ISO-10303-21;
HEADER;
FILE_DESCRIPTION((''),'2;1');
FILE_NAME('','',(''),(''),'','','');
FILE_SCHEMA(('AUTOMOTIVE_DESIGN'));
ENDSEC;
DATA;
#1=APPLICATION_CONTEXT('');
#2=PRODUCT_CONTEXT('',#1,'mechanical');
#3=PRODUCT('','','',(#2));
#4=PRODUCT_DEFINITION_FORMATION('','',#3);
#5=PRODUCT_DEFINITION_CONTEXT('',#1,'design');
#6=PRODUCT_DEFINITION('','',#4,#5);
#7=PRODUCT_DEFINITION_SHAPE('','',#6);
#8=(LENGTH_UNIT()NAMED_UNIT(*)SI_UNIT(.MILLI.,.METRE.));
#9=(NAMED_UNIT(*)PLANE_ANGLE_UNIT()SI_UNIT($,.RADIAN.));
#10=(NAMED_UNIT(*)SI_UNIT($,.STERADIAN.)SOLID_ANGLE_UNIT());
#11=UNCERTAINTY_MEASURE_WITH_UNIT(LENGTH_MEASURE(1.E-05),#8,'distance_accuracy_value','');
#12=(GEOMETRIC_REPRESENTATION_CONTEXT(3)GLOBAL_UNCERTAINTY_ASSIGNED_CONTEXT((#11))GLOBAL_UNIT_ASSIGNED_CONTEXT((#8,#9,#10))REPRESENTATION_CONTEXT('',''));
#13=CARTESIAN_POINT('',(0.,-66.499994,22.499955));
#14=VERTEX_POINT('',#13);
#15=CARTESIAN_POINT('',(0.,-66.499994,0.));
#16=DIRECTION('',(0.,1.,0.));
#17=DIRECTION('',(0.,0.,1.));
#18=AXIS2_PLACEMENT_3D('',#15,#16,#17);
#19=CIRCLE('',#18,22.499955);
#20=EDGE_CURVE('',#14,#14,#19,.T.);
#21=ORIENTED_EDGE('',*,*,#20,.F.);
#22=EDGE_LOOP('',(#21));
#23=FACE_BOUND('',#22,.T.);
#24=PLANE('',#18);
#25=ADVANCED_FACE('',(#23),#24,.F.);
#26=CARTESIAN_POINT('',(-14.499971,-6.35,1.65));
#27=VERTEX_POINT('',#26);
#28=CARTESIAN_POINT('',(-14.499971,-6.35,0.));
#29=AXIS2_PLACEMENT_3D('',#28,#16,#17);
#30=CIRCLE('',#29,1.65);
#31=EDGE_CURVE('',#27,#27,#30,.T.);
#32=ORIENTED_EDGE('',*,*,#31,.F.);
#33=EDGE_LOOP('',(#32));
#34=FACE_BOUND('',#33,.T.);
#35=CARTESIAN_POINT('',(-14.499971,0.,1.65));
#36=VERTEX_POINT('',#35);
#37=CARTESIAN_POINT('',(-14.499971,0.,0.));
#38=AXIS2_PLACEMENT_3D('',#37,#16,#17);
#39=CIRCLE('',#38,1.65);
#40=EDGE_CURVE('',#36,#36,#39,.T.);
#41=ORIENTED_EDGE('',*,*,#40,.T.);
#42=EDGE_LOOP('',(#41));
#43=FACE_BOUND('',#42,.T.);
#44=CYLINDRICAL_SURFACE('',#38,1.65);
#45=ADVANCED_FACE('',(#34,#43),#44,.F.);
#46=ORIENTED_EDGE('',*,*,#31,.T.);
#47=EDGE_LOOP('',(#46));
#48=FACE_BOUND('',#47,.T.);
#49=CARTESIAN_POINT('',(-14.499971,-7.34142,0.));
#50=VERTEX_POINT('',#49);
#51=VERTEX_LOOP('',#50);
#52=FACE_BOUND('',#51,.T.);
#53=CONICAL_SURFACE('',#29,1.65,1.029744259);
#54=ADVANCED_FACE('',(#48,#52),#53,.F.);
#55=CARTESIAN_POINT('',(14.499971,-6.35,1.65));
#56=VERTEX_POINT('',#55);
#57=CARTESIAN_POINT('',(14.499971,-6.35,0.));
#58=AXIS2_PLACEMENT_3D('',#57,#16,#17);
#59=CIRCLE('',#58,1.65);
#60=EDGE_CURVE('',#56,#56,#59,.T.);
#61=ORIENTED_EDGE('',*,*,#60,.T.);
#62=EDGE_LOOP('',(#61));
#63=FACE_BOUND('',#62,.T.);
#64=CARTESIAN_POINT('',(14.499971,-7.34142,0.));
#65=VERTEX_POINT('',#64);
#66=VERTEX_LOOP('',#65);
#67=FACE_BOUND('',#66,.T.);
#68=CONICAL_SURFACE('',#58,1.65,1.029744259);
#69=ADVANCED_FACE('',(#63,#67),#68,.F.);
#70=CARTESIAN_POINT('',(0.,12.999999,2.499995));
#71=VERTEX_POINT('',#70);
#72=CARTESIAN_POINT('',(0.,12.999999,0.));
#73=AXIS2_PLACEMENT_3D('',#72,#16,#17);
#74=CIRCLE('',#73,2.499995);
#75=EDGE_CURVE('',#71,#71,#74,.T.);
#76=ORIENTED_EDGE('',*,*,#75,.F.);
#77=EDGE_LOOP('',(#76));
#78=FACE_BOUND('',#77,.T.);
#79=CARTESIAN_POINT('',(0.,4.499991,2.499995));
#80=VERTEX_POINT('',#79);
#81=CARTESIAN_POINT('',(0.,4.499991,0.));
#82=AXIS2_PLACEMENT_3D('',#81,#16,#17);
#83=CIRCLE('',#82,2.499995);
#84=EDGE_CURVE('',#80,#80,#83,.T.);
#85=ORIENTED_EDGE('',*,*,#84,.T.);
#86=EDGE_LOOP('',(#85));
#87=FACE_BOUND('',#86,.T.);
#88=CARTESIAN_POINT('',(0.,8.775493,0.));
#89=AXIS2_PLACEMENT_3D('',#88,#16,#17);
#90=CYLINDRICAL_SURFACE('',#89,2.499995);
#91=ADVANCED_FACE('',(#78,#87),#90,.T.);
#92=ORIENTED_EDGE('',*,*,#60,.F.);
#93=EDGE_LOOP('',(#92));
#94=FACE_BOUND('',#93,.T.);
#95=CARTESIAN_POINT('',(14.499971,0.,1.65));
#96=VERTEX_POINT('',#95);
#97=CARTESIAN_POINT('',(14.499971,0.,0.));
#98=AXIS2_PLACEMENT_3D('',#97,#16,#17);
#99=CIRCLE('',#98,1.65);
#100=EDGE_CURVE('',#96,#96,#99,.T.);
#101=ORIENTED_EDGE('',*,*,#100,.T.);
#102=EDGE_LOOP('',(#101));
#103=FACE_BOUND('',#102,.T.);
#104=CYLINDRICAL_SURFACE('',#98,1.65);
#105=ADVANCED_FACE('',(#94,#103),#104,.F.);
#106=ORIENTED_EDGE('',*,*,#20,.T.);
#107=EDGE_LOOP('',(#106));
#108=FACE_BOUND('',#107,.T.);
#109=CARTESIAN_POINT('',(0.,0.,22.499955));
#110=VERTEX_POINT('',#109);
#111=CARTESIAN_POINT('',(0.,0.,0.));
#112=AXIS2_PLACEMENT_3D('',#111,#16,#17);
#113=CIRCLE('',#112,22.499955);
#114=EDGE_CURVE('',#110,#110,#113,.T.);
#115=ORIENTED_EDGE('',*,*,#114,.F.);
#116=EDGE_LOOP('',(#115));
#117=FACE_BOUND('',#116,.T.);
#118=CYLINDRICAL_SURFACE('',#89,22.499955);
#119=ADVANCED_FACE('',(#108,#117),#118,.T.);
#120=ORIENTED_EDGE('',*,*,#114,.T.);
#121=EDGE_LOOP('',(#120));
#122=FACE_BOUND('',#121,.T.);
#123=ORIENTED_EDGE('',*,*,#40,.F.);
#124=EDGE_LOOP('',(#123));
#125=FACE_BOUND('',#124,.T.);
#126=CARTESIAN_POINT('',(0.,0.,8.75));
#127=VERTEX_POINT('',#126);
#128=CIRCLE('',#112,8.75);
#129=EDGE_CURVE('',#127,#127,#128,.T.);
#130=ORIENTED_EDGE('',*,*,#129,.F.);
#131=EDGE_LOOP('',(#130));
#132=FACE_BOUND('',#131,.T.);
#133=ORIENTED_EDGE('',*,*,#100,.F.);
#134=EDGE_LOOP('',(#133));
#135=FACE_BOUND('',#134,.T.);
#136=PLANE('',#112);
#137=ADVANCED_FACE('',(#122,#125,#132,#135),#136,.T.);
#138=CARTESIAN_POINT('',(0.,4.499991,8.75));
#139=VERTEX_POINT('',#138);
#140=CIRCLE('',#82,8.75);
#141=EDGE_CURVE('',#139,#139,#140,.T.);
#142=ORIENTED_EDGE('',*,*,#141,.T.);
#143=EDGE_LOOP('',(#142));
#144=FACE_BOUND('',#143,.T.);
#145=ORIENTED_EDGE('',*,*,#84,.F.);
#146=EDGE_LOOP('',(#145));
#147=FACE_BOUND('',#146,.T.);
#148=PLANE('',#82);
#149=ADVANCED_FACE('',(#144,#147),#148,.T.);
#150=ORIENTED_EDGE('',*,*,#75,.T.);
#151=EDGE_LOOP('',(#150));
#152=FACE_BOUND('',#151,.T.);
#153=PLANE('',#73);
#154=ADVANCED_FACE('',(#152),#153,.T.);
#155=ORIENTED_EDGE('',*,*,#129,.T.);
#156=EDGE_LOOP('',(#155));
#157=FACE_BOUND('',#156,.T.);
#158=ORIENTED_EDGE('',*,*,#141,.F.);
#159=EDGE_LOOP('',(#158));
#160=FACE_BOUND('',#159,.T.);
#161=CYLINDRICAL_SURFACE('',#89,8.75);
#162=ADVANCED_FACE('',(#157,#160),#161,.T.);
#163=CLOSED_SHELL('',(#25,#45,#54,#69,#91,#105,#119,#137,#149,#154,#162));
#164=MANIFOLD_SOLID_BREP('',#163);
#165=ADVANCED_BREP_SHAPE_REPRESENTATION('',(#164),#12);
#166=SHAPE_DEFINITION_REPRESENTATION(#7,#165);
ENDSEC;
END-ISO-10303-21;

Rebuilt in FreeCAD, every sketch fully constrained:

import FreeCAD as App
import Part
import Sketcher

V = App.Vector


def add_polygon(sketch, points):
    """Adds a closed chain of lines whose ends are joined by coincident constraints."""
    first, n = sketch.GeometryCount, len(points)
    for a, b in zip(points, points[1:] + points[:1]):
        sketch.addGeometry(Part.LineSegment(App.Vector(*a, 0), App.Vector(*b, 0)), False)
    for i in range(n):
        sketch.addConstraint(Sketcher.Constraint("Coincident", first + i, 2, first + (i + 1) % n, 1))

doc = App.newDocument("Part")
body = doc.addObject("PartDesign::Body", "Body")

# Sketch on XY plane
sketch1 = doc.addObject("Sketcher::SketchObject", "Sketch")
body.addObject(sketch1)
sketch1.AttachmentSupport = (doc.XY_Plane, [""])
sketch1.MapMode = "FlatFace"
add_polygon(sketch1, [(0, -66.499994), (22.499955, -66.499994), (22.499955, 0), (8.75, 0), (8.75, 4.499991), (2.499995, 4.499991), (2.499995, 12.999999), (0, 12.999999)])  # lines 0-7
sketch1.addConstraint(Sketcher.Constraint("Horizontal", 0))
sketch1.addConstraint(Sketcher.Constraint("Vertical", 1))
sketch1.addConstraint(Sketcher.Constraint("Horizontal", 2))
sketch1.addConstraint(Sketcher.Constraint("Vertical", 3))
sketch1.addConstraint(Sketcher.Constraint("Horizontal", 4))
sketch1.addConstraint(Sketcher.Constraint("Vertical", 5))
sketch1.addConstraint(Sketcher.Constraint("Horizontal", 6))
sketch1.addConstraint(Sketcher.Constraint("Vertical", 7))
sketch1.addConstraint(Sketcher.Constraint("PointOnObject", 1, 2, -1))
sketch1.addConstraint(Sketcher.Constraint("PointOnObject", 6, 2, -2))
sketch1.addConstraint(Sketcher.Constraint("DistanceY", -1, 1, 5, 2, 12.999999))
sketch1.addConstraint(Sketcher.Constraint("DistanceX", -1, 1, 2, 2, 8.75))
sketch1.addConstraint(Sketcher.Constraint("DistanceY", 3, 1, 3, 2, 4.499991))
sketch1.addConstraint(Sketcher.Constraint("DistanceX", 0, 1, 0, 2, 22.499955))
sketch1.addConstraint(Sketcher.Constraint("DistanceX", 4, 2, 4, 1, 6.250005))
sketch1.addConstraint(Sketcher.Constraint("DistanceY", 1, 1, 1, 2, 66.499994))
revolution = doc.addObject("PartDesign::Revolution", "Revolution")
body.addObject(revolution)
revolution.Profile = sketch1
revolution.ReferenceAxis = (sketch1, ["V_Axis"])
revolution.Angle = 360

# Sketch on XZ plane
sketch2 = doc.addObject("Sketcher::SketchObject", "Sketch001")
body.addObject(sketch2)
sketch2.AttachmentSupport = (doc.XZ_Plane, [""])
sketch2.MapMode = "FlatFace"
sketch2.addGeometry(Part.Circle(V(-14.499971, 0, 0), V(0, 0, 1), 1.65), False)
sketch2.addGeometry(Part.Circle(V(14.499971, 0, 0), V(0, 0, 1), 1.65), False)
sketch2.addConstraint(Sketcher.Constraint("Equal", 0, 1))
sketch2.addConstraint(Sketcher.Constraint("Symmetric", 0, 3, 1, 3, -1, 1))
sketch2.addConstraint(Sketcher.Constraint("PointOnObject", 0, 3, -1))
sketch2.addConstraint(Sketcher.Constraint("Diameter", 0, 3.3))
sketch2.addConstraint(Sketcher.Constraint("DistanceX", 0, 3, -1, 1, 14.499971))
doc.recompute()
hole = doc.addObject("PartDesign::Hole", "Hole")
body.addObject(hole)
hole.Profile = sketch2
hole.ThreadType = "None"
hole.Diameter = 3.3
hole.DepthType = "Dimension"
hole.Depth = 6.35
hole.DrillPoint = "Angled"
hole.DrillPointAngle = 118
hole.Reversed = True

doc.recompute()
